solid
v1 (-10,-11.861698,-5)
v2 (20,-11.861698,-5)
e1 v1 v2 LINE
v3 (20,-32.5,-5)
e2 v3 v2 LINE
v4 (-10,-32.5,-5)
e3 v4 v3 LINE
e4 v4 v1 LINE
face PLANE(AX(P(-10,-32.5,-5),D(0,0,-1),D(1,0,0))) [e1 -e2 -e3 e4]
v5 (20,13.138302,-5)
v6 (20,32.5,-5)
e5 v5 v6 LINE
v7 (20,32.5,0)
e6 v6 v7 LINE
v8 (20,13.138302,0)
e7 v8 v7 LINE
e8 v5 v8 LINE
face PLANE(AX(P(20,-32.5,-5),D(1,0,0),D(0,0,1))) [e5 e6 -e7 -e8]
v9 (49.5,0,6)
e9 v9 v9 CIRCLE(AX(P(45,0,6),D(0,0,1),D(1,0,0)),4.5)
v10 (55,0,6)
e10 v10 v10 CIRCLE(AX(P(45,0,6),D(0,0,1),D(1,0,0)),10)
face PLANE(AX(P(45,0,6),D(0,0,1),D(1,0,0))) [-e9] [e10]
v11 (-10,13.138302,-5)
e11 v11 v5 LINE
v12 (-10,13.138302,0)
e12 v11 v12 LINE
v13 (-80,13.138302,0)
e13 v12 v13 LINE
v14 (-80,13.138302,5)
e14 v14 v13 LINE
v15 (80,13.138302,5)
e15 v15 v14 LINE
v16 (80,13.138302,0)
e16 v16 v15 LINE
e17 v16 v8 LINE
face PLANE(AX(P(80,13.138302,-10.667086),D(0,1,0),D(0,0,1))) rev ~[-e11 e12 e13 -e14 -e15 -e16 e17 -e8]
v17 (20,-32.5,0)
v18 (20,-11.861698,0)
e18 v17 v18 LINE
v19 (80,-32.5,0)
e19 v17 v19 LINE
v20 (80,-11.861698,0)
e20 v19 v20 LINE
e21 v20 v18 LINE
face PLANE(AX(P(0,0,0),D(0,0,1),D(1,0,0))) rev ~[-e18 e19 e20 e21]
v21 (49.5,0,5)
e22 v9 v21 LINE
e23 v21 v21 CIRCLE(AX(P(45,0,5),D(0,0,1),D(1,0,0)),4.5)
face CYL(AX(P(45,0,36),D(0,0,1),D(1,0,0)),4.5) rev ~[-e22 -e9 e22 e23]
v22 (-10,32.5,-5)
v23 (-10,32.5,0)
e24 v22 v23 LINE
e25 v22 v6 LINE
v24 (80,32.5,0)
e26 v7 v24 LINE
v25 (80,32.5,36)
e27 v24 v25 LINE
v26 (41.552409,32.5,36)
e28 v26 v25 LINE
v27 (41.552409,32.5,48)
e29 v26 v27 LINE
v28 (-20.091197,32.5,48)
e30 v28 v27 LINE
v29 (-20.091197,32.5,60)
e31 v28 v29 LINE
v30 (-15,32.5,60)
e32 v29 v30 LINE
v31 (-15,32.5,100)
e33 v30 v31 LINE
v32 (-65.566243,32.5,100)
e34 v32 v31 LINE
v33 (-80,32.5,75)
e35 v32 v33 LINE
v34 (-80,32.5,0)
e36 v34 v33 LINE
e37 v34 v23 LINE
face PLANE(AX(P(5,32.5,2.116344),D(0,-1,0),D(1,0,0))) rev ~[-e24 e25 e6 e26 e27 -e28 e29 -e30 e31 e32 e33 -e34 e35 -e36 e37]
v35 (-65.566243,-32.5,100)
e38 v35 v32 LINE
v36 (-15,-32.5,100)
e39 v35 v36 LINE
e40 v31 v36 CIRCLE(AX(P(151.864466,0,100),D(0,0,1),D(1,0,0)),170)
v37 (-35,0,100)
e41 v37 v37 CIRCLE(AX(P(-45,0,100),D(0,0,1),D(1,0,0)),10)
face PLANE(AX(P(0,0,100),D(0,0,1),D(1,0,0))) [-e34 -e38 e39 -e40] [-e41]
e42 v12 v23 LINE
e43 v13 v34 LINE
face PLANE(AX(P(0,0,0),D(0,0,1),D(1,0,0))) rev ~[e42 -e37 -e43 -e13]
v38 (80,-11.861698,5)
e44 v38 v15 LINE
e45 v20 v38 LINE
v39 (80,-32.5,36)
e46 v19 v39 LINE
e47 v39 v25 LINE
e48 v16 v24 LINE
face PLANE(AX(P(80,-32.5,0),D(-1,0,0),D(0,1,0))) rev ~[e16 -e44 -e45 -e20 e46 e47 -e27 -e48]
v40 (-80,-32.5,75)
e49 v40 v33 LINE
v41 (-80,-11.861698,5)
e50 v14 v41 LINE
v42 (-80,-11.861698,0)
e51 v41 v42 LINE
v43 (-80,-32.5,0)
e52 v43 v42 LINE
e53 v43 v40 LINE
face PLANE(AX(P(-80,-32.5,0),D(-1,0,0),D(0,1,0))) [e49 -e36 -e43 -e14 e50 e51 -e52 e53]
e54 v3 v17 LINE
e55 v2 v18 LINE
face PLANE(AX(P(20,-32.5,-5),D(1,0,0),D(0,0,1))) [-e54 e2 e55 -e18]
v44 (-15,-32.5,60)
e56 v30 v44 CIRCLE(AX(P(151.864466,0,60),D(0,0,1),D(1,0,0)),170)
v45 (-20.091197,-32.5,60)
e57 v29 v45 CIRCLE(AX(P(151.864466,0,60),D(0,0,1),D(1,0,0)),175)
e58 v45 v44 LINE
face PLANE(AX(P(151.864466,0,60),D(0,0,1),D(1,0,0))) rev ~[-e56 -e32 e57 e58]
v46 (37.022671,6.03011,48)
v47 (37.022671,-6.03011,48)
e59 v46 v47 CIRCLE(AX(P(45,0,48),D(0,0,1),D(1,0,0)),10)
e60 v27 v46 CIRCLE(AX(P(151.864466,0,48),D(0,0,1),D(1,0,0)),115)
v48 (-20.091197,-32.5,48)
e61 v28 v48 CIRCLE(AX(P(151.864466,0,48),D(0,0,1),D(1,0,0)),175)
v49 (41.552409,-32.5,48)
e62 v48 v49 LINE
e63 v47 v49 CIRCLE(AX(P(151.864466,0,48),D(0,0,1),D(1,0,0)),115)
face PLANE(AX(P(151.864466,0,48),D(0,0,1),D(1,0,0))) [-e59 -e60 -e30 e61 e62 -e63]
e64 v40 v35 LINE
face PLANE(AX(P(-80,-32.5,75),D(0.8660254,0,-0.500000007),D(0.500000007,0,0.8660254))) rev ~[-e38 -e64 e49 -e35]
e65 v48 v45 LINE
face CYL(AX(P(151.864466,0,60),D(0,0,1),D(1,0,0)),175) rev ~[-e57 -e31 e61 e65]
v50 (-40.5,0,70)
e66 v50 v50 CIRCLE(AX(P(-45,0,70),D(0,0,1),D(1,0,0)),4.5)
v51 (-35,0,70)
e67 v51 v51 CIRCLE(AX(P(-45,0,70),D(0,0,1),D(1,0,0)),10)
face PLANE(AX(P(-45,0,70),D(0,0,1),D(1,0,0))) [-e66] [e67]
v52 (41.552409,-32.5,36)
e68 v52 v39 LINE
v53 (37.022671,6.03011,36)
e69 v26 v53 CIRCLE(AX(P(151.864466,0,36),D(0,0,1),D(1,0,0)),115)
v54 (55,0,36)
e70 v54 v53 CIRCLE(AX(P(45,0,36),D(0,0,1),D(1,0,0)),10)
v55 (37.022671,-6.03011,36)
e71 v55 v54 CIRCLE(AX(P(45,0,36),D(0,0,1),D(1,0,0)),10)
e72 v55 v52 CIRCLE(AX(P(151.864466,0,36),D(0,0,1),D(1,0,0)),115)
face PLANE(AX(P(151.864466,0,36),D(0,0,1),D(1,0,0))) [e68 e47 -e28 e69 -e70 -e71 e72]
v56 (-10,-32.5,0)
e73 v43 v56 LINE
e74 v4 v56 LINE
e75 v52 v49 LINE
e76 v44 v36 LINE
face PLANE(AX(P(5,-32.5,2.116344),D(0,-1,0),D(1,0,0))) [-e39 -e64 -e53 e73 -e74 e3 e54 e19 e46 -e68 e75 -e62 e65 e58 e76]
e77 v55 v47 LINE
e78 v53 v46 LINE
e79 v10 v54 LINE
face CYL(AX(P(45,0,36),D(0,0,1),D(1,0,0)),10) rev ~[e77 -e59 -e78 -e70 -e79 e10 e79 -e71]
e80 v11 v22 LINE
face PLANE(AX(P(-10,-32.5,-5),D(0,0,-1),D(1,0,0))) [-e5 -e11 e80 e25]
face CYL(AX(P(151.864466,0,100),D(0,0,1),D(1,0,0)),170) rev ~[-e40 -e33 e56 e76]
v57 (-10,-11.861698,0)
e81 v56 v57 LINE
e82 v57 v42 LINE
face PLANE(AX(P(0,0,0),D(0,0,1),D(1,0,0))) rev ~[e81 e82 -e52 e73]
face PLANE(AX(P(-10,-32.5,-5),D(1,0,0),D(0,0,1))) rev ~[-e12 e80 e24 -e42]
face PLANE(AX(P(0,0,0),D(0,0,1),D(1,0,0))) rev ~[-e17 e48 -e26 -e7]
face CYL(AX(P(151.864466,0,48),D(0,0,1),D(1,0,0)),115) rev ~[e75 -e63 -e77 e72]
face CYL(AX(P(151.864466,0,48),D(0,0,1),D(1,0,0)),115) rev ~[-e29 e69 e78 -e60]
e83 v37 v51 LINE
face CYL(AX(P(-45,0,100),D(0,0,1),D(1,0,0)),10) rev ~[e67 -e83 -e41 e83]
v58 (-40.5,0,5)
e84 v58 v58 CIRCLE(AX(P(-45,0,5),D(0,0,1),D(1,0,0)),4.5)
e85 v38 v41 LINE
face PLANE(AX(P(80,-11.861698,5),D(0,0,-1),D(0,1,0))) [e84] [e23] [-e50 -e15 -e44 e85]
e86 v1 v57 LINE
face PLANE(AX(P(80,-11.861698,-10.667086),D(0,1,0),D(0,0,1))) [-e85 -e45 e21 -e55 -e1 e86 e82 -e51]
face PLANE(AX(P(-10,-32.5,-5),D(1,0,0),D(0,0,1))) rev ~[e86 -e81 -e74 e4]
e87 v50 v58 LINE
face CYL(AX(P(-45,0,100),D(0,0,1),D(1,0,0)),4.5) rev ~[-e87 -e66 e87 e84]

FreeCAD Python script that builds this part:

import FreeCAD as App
import Part
import Sketcher

V = App.Vector
Q = App.Units.Quantity

doc = App.newDocument("Part")
body = doc.addObject("PartDesign::Body", "Body")

sketch1 = doc.addObject("Sketcher::SketchObject", "Sketch")
body.addObject(sketch1)
sketch1.AttachmentSupport = (doc.XY_Plane, [""])
sketch1.MapMode = "FlatFace"
sketch1.addGeometry([
    Part.LineSegment(V(-80, 32, 0), V(-80, -32, 0)),
    Part.LineSegment(V(-80, -32, 0), V(80, -32, 0)),
    Part.LineSegment(V(80, -32, 0), V(80, 32, 0)),
    Part.LineSegment(V(80, 32, 0), V(-80, 32, 0)),
], False)
sketch1.addConstraint([
    Sketcher.Constraint("Coincident", 0, 2, 1, 1),
    Sketcher.Constraint("Coincident", 1, 2, 2, 1),
    Sketcher.Constraint("Coincident", 2, 2, 3, 1),
    Sketcher.Constraint("Coincident", 3, 2, 0, 1),
    Sketcher.Constraint("Vertical", 0),
    Sketcher.Constraint("Horizontal", 1),
    Sketcher.Constraint("Vertical", 2),
    Sketcher.Constraint("Horizontal", 3),
    Sketcher.Constraint("Symmetric", 0, 2, 2, 2, -1, 1),
    Sketcher.Constraint("DistanceX", 1, 1, 1, 2, 160.0),
    Sketcher.Constraint("DistanceY", 0, 2, 0, 1, 65.0),
])
pad1 = doc.addObject("PartDesign::Pad", "Pad")
body.addObject(pad1)
pad1.Profile = sketch1
pad1.Length = 100

sketch2 = doc.addObject("Sketcher::SketchObject", "Sketch001")
body.addObject(sketch2)
sketch2.AttachmentSupport = (doc.XZ_Plane, [""])
sketch2.MapMode = "FlatFace"
sketch2.AttachmentOffset = App.Placement(V(0, 0, 32.5), App.Rotation())
sketch2.addGeometry([
    Part.LineSegment(V(-80, 100, 0), V(-80, 75, 0)),
    Part.LineSegment(V(-80, 75, 0), V(-66, 100, 0)),
    Part.LineSegment(V(-66, 100, 0), V(-80, 100, 0)),
], False)
sketch2.addConstraint([
    Sketcher.Constraint("Coincident", 0, 2, 1, 1),
    Sketcher.Constraint("Coincident", 1, 2, 2, 1),
    Sketcher.Constraint("Coincident", 2, 2, 0, 1),
    Sketcher.Constraint("Vertical", 0),
    Sketcher.Constraint("Horizontal", 2),
    Sketcher.Constraint("DistanceY", 0, 2, 0, 1, 25.0),
    Sketcher.Constraint("Angle", 1, Q("60 deg")),
    Sketcher.Constraint("DistanceX", 0, 2, -1, 1, 80.0),
    Sketcher.Constraint("DistanceY", -1, 1, 0, 2, 75.0),
])
pocket1 = doc.addObject("PartDesign::Pocket", "Pocket")
body.addObject(pocket1)
pocket1.Profile = sketch2
pocket1.Type = "ThroughAll"

sketch3 = doc.addObject("Sketcher::SketchObject", "Sketch002")
body.addObject(sketch3)
sketch3.AttachmentSupport = (doc.XY_Plane, [""])
sketch3.MapMode = "FlatFace"
sketch3.AttachmentOffset = App.Placement(V(0, 0, 100), App.Rotation())
sketch3.addGeometry(Part.Circle(V(-45, 0, 0), V(0, 0, 1), 4.5), False)
sketch3.addConstraint([
    Sketcher.Constraint("PointOnObject", 0, 3, -1),
    Sketcher.Constraint("Diameter", 0, 9.0),
    Sketcher.Constraint("DistanceX", 0, 3, -1, 1, 45.0),
])
pocket2 = doc.addObject("PartDesign::Pocket", "Pocket001")
body.addObject(pocket2)
pocket2.Profile = sketch3
pocket2.Type = "ThroughAll"

sketch4 = doc.addObject("Sketcher::SketchObject", "Sketch003")
body.addObject(sketch4)
sketch4.AttachmentSupport = (doc.XY_Plane, [""])
sketch4.MapMode = "FlatFace"
sketch4.AttachmentOffset = App.Placement(V(0, 0, 100), App.Rotation())
sketch4.addGeometry(Part.Circle(V(-45, 0, 0), V(0, 0, 1), 10), False)
sketch4.addConstraint([
    Sketcher.Constraint("PointOnObject", 0, 3, -1),
    Sketcher.Constraint("Diameter", 0, 20.0),
    Sketcher.Constraint("DistanceX", 0, 3, -1, 1, 45.0),
])
pocket3 = doc.addObject("PartDesign::Pocket", "Pocket002")
body.addObject(pocket3)
pocket3.Profile = sketch4
pocket3.Length = 30

sketch5 = doc.addObject("Sketcher::SketchObject", "Sketch004")
body.addObject(sketch5)
sketch5.AttachmentSupport = (doc.XY_Plane, [""])
sketch5.MapMode = "FlatFace"
sketch5.AttachmentOffset = App.Placement(V(0, 0, 100), App.Rotation())
sketch5.addGeometry(Part.Circle(V(152, 0, 0), V(0, 0, 1), 170), False)
sketch5.addConstraint([
    Sketcher.Constraint("PointOnObject", 0, 3, -1),
    Sketcher.Constraint("Diameter", 0, 340.0),
    Sketcher.Constraint("DistanceX", -1, 1, 0, 3, 151.864466),
])
pocket4 = doc.addObject("PartDesign::Pocket", "Pocket003")
body.addObject(pocket4)
pocket4.Profile = sketch5
pocket4.Length = 40

sketch6 = doc.addObject("Sketcher::SketchObject", "Sketch005")
body.addObject(sketch6)
sketch6.AttachmentSupport = (doc.XY_Plane, [""])
sketch6.MapMode = "FlatFace"
sketch6.AttachmentOffset = App.Placement(V(0, 0, 60), App.Rotation())
sketch6.addGeometry(Part.Circle(V(152, 0, 0), V(0, 0, 1), 175), False)
sketch6.addConstraint([
    Sketcher.Constraint("PointOnObject", 0, 3, -1),
    Sketcher.Constraint("Diameter", 0, 350.0),
    Sketcher.Constraint("DistanceX", -1, 1, 0, 3, 151.864466),
])
pocket5 = doc.addObject("PartDesign::Pocket", "Pocket004")
body.addObject(pocket5)
pocket5.Profile = sketch6
pocket5.Length = 12

sketch7 = doc.addObject("Sketcher::SketchObject", "Sketch006")
body.addObject(sketch7)
sketch7.AttachmentSupport = (doc.XY_Plane, [""])
sketch7.MapMode = "FlatFace"
sketch7.AttachmentOffset = App.Placement(V(0, 0, 48), App.Rotation())
sketch7.addGeometry(Part.Circle(V(152, 0, 0), V(0, 0, 1), 115), False)
sketch7.addConstraint([
    Sketcher.Constraint("PointOnObject", 0, 3, -1),
    Sketcher.Constraint("Diameter", 0, 230.0),
    Sketcher.Constraint("DistanceX", -1, 1, 0, 3, 151.864466),
])
pocket6 = doc.addObject("PartDesign::Pocket", "Pocket005")
body.addObject(pocket6)
pocket6.Profile = sketch7
pocket6.Length = 12

sketch8 = doc.addObject("Sketcher::SketchObject", "Sketch007")
body.addObject(sketch8)
sketch8.AttachmentSupport = (doc.XY_Plane, [""])
sketch8.MapMode = "FlatFace"
sketch8.AttachmentOffset = App.Placement(V(0, 0, 36), App.Rotation())
sketch8.addGeometry(Part.Circle(V(45, 0, 0), V(0, 0, 1), 4.5), False)
sketch8.addConstraint([
    Sketcher.Constraint("PointOnObject", 0, 3, -1),
    Sketcher.Constraint("Diameter", 0, 9.0),
    Sketcher.Constraint("DistanceX", -1, 1, 0, 3, 45.0),
])
pocket7 = doc.addObject("PartDesign::Pocket", "Pocket006")
body.addObject(pocket7)
pocket7.Profile = sketch8
pocket7.Type = "ThroughAll"

sketch9 = doc.addObject("Sketcher::SketchObject", "Sketch008")
body.addObject(sketch9)
sketch9.AttachmentSupport = (doc.XY_Plane, [""])
sketch9.MapMode = "FlatFace"
sketch9.AttachmentOffset = App.Placement(V(0, 0, 36), App.Rotation())
sketch9.addGeometry(Part.Circle(V(45, 0, 0), V(0, 0, 1), 10), False)
sketch9.addConstraint([
    Sketcher.Constraint("PointOnObject", 0, 3, -1),
    Sketcher.Constraint("Diameter", 0, 20.0),
    Sketcher.Constraint("DistanceX", -1, 1, 0, 3, 45.0),
])
pocket8 = doc.addObject("PartDesign::Pocket", "Pocket007")
body.addObject(pocket8)
pocket8.Profile = sketch9
pocket8.Length = 60
pocket8.Midplane = True

sketch10 = doc.addObject("Sketcher::SketchObject", "Sketch009")
body.addObject(sketch10)
sketch10.AttachmentSupport = (doc.XZ_Plane, [""])
sketch10.MapMode = "FlatFace"
sketch10.AttachmentOffset = App.Placement(V(0, 0, 32.5), App.Rotation())
sketch10.addGeometry([
    Part.LineSegment(V(-10, 9, 0), V(-10, -5, 0)),
    Part.LineSegment(V(-10, -5, 0), V(20, -5, 0)),
    Part.LineSegment(V(20, -5, 0), V(20, 9, 0)),
    Part.LineSegment(V(20, 9, 0), V(-10, 9, 0)),
], False)
sketch10.addConstraint([
    Sketcher.Constraint("Coincident", 0, 2, 1, 1),
    Sketcher.Constraint("Coincident", 1, 2, 2, 1),
    Sketcher.Constraint("Coincident", 2, 2, 3, 1),
    Sketcher.Constraint("Coincident", 3, 2, 0, 1),
    Sketcher.Constraint("Vertical", 0),
    Sketcher.Constraint("Horizontal", 1),
    Sketcher.Constraint("Vertical", 2),
    Sketcher.Constraint("Horizontal", 3),
    Sketcher.Constraint("DistanceX", 1, 1, 1, 2, 30.0),
    Sketcher.Constraint("DistanceX", 0, 2, -1, 1, 10.0),
    Sketcher.Constraint("DistanceY", 0, 2, -1, 1, 5.0),
    Sketcher.Constraint("DistanceY", 0, 2, 0, 1, 14.232688),
])
pad2 = doc.addObject("PartDesign::Pad", "Pad001")
body.addObject(pad2)
pad2.Profile = sketch10
pad2.Length = 65
pad2.Reversed = True

sketch11 = doc.addObject("Sketcher::SketchObject", "Sketch010")
body.addObject(sketch11)
sketch11.AttachmentSupport = (doc.YZ_Plane, [""])
sketch11.MapMode = "FlatFace"
sketch11.AttachmentOffset = App.Placement(V(0, 0, 80), App.Rotation())
sketch11.addGeometry([
    Part.LineSegment(V(-12, 5, 0), V(-12, -11, 0)),
    Part.LineSegment(V(-12, -11, 0), V(13, -11, 0)),
    Part.LineSegment(V(13, -11, 0), V(13, 5, 0)),
    Part.LineSegment(V(13, 5, 0), V(-12, 5, 0)),
], False)
sketch11.addConstraint([
    Sketcher.Constraint("Coincident", 0, 2, 1, 1),
    Sketcher.Constraint("Coincident", 1, 2, 2, 1),
    Sketcher.Constraint("Coincident", 2, 2, 3, 1),
    Sketcher.Constraint("Coincident", 3, 2, 0, 1),
    Sketcher.Constraint("Vertical", 0),
    Sketcher.Constraint("Horizontal", 1),
    Sketcher.Constraint("Vertical", 2),
    Sketcher.Constraint("Horizontal", 3),
    Sketcher.Constraint("DistanceX", 1, 1, 1, 2, 25.0),
    Sketcher.Constraint("DistanceY", -1, 1, 2, 2, 5.0),
    Sketcher.Constraint("DistanceY", 0, 2, 0, 1, 15.667085),
    Sketcher.Constraint("DistanceX", 0, 2, -1, 1, 11.861698),
])
pocket9 = doc.addObject("PartDesign::Pocket", "Pocket008")
body.addObject(pocket9)
pocket9.Profile = sketch11
pocket9.Type = "ThroughAll"

doc.recompute()
